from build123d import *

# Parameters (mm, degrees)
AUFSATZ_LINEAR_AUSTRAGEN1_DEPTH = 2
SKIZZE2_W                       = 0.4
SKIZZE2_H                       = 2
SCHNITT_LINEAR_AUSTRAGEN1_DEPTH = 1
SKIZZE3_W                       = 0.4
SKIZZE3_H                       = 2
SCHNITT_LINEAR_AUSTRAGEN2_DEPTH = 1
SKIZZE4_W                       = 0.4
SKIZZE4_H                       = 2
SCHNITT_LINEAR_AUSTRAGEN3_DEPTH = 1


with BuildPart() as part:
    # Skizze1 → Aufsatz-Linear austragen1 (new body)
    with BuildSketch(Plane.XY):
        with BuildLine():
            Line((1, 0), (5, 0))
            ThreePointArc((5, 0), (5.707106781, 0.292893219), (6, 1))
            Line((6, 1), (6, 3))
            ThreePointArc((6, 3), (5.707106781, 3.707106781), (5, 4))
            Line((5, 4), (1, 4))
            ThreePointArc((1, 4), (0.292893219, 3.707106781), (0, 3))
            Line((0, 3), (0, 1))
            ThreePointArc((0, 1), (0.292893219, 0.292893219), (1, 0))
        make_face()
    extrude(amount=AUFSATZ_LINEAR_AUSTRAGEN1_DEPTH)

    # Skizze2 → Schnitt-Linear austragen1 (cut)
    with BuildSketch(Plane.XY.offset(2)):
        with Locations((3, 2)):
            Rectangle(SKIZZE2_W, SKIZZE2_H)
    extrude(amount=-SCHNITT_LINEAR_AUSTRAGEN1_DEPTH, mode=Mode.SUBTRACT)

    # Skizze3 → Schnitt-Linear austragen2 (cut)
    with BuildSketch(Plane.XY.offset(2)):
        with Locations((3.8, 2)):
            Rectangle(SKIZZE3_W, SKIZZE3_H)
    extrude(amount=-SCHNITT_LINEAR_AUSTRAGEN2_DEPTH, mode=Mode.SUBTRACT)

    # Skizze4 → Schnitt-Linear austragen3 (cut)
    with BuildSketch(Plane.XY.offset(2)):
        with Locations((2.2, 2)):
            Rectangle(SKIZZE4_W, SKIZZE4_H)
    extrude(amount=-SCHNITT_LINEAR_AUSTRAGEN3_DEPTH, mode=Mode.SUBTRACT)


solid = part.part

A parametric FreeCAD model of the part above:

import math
import FreeCAD as App
import Part
import Sketcher
Q = App.Units.Quantity


def add_polygon(sketch, points):
    """Adds a closed chain of lines whose ends are joined by coincident constraints."""
    first, n = sketch.GeometryCount, len(points)
    for a, b in zip(points, points[1:] + points[:1]):
        sketch.addGeometry(Part.LineSegment(App.Vector(*a, 0), App.Vector(*b, 0)), False)
    for i in range(n):
        sketch.addConstraint(Sketcher.Constraint("Coincident", first + i, 2, first + (i + 1) % n, 1))

doc = App.newDocument("Part")
body = doc.addObject("PartDesign::Body", "Body")

# Sketch on XY plane
sketch1 = body.newObject("Sketcher::SketchObject", "Sketch")
sketch1.AttachmentSupport = (doc.getObject("XY_Plane"), [""])
sketch1.MapMode = "FlatFace"
sketch1.addGeometry([
    Part.LineSegment(App.Vector(1, 0, 0), App.Vector(5, 0, 0)),  # 0
    Part.ArcOfCircle(Part.Circle(App.Vector(5, 1, 0), App.Vector(0, 0, 1), 1), math.radians(-90), math.radians(0)),  # 1
    Part.LineSegment(App.Vector(6, 1, 0), App.Vector(6, 3, 0)),  # 2
    Part.ArcOfCircle(Part.Circle(App.Vector(5, 3, 0), App.Vector(0, 0, 1), 1), math.radians(0), math.radians(90)),  # 3
    Part.LineSegment(App.Vector(5, 4, 0), App.Vector(1, 4, 0)),  # 4
    Part.ArcOfCircle(Part.Circle(App.Vector(1, 3, 0), App.Vector(0, 0, 1), 1), math.radians(90), math.radians(180)),  # 5
    Part.LineSegment(App.Vector(0, 3, 0), App.Vector(0, 1, 0)),  # 6
    Part.ArcOfCircle(Part.Circle(App.Vector(1, 1, 0), App.Vector(0, 0, 1), 1), math.radians(-180), math.radians(-90)),  # 7
], False)
sketch1.addConstraint([
    Sketcher.Constraint("Tangent", 0, 2, 1, 1),
    Sketcher.Constraint("Tangent", 1, 2, 2, 1),
    Sketcher.Constraint("Tangent", 2, 2, 3, 1),
    Sketcher.Constraint("Tangent", 3, 2, 4, 1),
    Sketcher.Constraint("Tangent", 4, 2, 5, 1),
    Sketcher.Constraint("Tangent", 5, 2, 6, 1),
    Sketcher.Constraint("Tangent", 6, 2, 7, 1),
    Sketcher.Constraint("Tangent", 7, 2, 0, 1),
    Sketcher.Constraint("Horizontal", 0),
    Sketcher.Constraint("Vertical", 2),
    Sketcher.Constraint("Horizontal", 4),
    Sketcher.Constraint("Vertical", 6),
    Sketcher.Constraint("Equal", 1, 3),
    Sketcher.Constraint("Equal", 3, 5),
    Sketcher.Constraint("Equal", 5, 7),
    Sketcher.Constraint("PointOnObject", 0, 2, -1),
    Sketcher.Constraint("PointOnObject", 5, 2, -2),
    Sketcher.Constraint("Radius", 1, Q("1 mm")),
    Sketcher.Constraint("DistanceX", 0, 1, 0, 2, Q("4 mm")),
    Sketcher.Constraint("DistanceY", 2, 1, 2, 2, Q("2 mm")),
])
pad1 = body.newObject("PartDesign::Pad", "Pad")
pad1.Profile = sketch1
pad1.Length = 2

# Sketch on XY plane
sketch2 = body.newObject("Sketcher::SketchObject", "Sketch001")
sketch2.AttachmentSupport = (doc.getObject("XY_Plane"), [""])
sketch2.MapMode = "FlatFace"
sketch2.AttachmentOffset = App.Placement(App.Vector(0, 0, 2), App.Rotation())
add_polygon(sketch2, [(2.8, 3), (2.8, 1), (3.2, 1), (3.2, 3)])  # lines 0-3
sketch2.addConstraint([
    Sketcher.Constraint("Vertical", 0),
    Sketcher.Constraint("Horizontal", 1),
    Sketcher.Constraint("Vertical", 2),
    Sketcher.Constraint("Horizontal", 3),
    Sketcher.Constraint("DistanceY", 0, 2, 0, 1, Q("2 mm")),
    Sketcher.Constraint("DistanceX", 1, 1, 1, 2, Q("0.4 mm")),
    Sketcher.Constraint("DistanceY", -1, 1, 0, 2, Q("1 mm")),
    Sketcher.Constraint("DistanceX", -1, 1, 0, 2, Q("2.8 mm")),
])
pocket1 = body.newObject("PartDesign::Pocket", "Pocket")
pocket1.Profile = sketch2
pocket1.Length = 1

# Sketch on XY plane
sketch3 = body.newObject("Sketcher::SketchObject", "Sketch002")
sketch3.AttachmentSupport = (doc.getObject("XY_Plane"), [""])
sketch3.MapMode = "FlatFace"
sketch3.AttachmentOffset = App.Placement(App.Vector(0, 0, 2), App.Rotation())
add_polygon(sketch3, [(3.6, 3), (3.6, 1), (4, 1), (4, 3)])  # lines 0-3
sketch3.addConstraint([
    Sketcher.Constraint("Vertical", 0),
    Sketcher.Constraint("Horizontal", 1),
    Sketcher.Constraint("Vertical", 2),
    Sketcher.Constraint("Horizontal", 3),
    Sketcher.Constraint("DistanceY", 0, 2, 0, 1, Q("2 mm")),
    Sketcher.Constraint("DistanceX", 1, 1, 1, 2, Q("0.4 mm")),
    Sketcher.Constraint("DistanceY", -1, 1, 0, 2, Q("1 mm")),
    Sketcher.Constraint("DistanceX", -1, 1, 1, 2, Q("4 mm")),
])
pocket2 = body.newObject("PartDesign::Pocket", "Pocket001")
pocket2.Profile = sketch3
pocket2.Length = 1

# Sketch on XY plane
sketch4 = body.newObject("Sketcher::SketchObject", "Sketch003")
sketch4.AttachmentSupport = (doc.getObject("XY_Plane"), [""])
sketch4.MapMode = "FlatFace"
sketch4.AttachmentOffset = App.Placement(App.Vector(0, 0, 2), App.Rotation())
add_polygon(sketch4, [(2, 3), (2, 1), (2.4, 1), (2.4, 3)])  # lines 0-3
sketch4.addConstraint([
    Sketcher.Constraint("Vertical", 0),
    Sketcher.Constraint("Horizontal", 1),
    Sketcher.Constraint("Vertical", 2),
    Sketcher.Constraint("Horizontal", 3),
    Sketcher.Constraint("DistanceY", 0, 2, 0, 1, Q("2 mm")),
    Sketcher.Constraint("DistanceX", 1, 1, 1, 2, Q("0.4 mm")),
    Sketcher.Constraint("DistanceX", -1, 1, 0, 2, Q("2 mm")),
    Sketcher.Constraint("DistanceY", -1, 1, 0, 2, Q("1 mm")),
])
pocket3 = body.newObject("PartDesign::Pocket", "Pocket002")
pocket3.Profile = sketch4
pocket3.Length = 1

doc.recompute()
